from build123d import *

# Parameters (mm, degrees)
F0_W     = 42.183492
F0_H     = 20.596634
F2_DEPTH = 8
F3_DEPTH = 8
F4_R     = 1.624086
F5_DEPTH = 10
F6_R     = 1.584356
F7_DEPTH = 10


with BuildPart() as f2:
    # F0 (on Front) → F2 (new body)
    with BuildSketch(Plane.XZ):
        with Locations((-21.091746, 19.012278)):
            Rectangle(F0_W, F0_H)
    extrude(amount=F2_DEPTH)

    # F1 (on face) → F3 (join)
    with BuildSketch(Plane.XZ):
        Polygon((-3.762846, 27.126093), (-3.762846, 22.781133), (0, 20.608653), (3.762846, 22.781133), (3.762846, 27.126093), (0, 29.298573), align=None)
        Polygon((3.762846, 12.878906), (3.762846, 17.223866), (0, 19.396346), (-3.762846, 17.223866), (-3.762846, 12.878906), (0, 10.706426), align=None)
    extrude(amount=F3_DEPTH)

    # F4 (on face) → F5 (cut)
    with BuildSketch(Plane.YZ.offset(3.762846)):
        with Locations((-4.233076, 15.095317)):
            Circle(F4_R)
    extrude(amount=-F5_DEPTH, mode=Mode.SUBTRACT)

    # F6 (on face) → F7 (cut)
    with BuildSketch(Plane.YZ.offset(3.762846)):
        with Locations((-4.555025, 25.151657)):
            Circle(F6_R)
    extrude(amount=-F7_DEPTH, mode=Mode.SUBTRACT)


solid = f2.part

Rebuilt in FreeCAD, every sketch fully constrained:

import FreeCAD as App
import Part
import Sketcher

V = App.Vector
Q = App.Units.Quantity


def add_polygon(sketch, points):
    """Adds a closed chain of lines whose ends are joined by coincident constraints."""
    first, n = sketch.GeometryCount, len(points)
    for a, b in zip(points, points[1:] + points[:1]):
        sketch.addGeometry(Part.LineSegment(App.Vector(*a, 0), App.Vector(*b, 0)), False)
    for i in range(n):
        sketch.addConstraint(Sketcher.Constraint("Coincident", first + i, 2, first + (i + 1) % n, 1))

doc = App.newDocument("Part")
body = doc.addObject("PartDesign::Body", "Body")

sketch1 = body.newObject("Sketcher::SketchObject", "Sketch")
sketch1.AttachmentSupport = (doc.getObject("XZ_Plane"), [""])
sketch1.MapMode = "FlatFace"
add_polygon(sketch1, [(-42, 29), (-42, 9), (0, 9), (0, 29)])
sketch1.addConstraint([
    Sketcher.Constraint("Vertical", 0),
    Sketcher.Constraint("Horizontal", 1),
    Sketcher.Constraint("Vertical", 2),
    Sketcher.Constraint("Horizontal", 3),
    Sketcher.Constraint("PointOnObject", 1, 2, -2),
    Sketcher.Constraint("DistanceX", 1, 1, 1, 2, 42.183492),
    Sketcher.Constraint("DistanceY", 0, 2, 0, 1, 20.596634),
    Sketcher.Constraint("DistanceY", -1, 1, 0, 2, 8.713961),
])
pad1 = body.newObject("PartDesign::Pad", "Pad")
pad1.Profile = sketch1
pad1.Length = 8

sketch2 = body.newObject("Sketcher::SketchObject", "Sketch001")
sketch2.AttachmentSupport = (doc.getObject("XZ_Plane"), [""])
sketch2.MapMode = "FlatFace"
add_polygon(sketch2, [(-3.8, 27.1), (-3.8, 22.8), (0, 20.6), (3.8, 22.8), (3.8, 27.1), (0, 29.3)])
add_polygon(sketch2, [(3.8, 12.9), (3.8, 17.2), (0, 19.4), (-3.8, 17.2), (-3.8, 12.9), (0, 10.7)])
sketch2.addConstraint([
    Sketcher.Constraint("Vertical", 0),
    Sketcher.Constraint("Vertical", 3),
    Sketcher.Constraint("Vertical", 6),
    Sketcher.Constraint("Vertical", 9),
    Sketcher.Constraint("Symmetric", 0, 2, 2, 2, -2),
    Sketcher.Constraint("Symmetric", 6, 2, 8, 2, -2),
    Sketcher.Constraint("PointOnObject", 1, 2, -2),
    Sketcher.Constraint("PointOnObject", 4, 2, -2),
    Sketcher.Constraint("PointOnObject", 7, 2, -2),
    Sketcher.Constraint("PointOnObject", 10, 2, -2),
    Sketcher.Constraint("Parallel", 1, 4),
    Sketcher.Constraint("Parallel", 2, 5),
    Sketcher.Constraint("Parallel", 4, 7),
    Sketcher.Constraint("Parallel", 7, 10),
    Sketcher.Constraint("Parallel", 8, 11),
    Sketcher.Constraint("Vertical", 3, 2, 6, 2),
    Sketcher.Constraint("Equal", 3, 6),
    Sketcher.Constraint("Angle", 1, Q("-29.999998 deg")),
    Sketcher.Constraint("DistanceY", 0, 2, 0, 1, 4.34496),
    Sketcher.Constraint("Distance", 1, 4.34496),
    Sketcher.Constraint("DistanceY", -1, 1, 0, 2, 22.781133),
    Sketcher.Constraint("DistanceY", -1, 1, 6, 2, 17.223866),
])
pad2 = body.newObject("PartDesign::Pad", "Pad001")
pad2.Profile = sketch2
pad2.Length = 8

sketch3 = body.newObject("Sketcher::SketchObject", "Sketch002")
sketch3.AttachmentSupport = (doc.getObject("YZ_Plane"), [""])
sketch3.MapMode = "FlatFace"
sketch3.AttachmentOffset = App.Placement(V(0, 0, 3.762846), App.Rotation())
sketch3.addGeometry(Part.Circle(V(-4.2, 15.1, 0), V(0, 0, 1), 1.6), False)
sketch3.addConstraint([
    Sketcher.Constraint("Diameter", 0, 3.248172),
    Sketcher.Constraint("DistanceX", 0, 3, -1, 1, 4.233076),
    Sketcher.Constraint("DistanceY", -1, 1, 0, 3, 15.095317),
])
pocket1 = body.newObject("PartDesign::Pocket", "Pocket")
pocket1.Profile = sketch3
pocket1.Length = 10

sketch4 = body.newObject("Sketcher::SketchObject", "Sketch003")
sketch4.AttachmentSupport = (doc.getObject("YZ_Plane"), [""])
sketch4.MapMode = "FlatFace"
sketch4.AttachmentOffset = App.Placement(V(0, 0, 3.762846), App.Rotation())
sketch4.addGeometry(Part.Circle(V(-4.6, 25.2, 0), V(0, 0, 1), 1.6), False)
sketch4.addConstraint([
    Sketcher.Constraint("Diameter", 0, 3.168712),
    Sketcher.Constraint("DistanceX", 0, 3, -1, 1, 4.555025),
    Sketcher.Constraint("DistanceY", -1, 1, 0, 3, 25.151657),
])
pocket2 = body.newObject("PartDesign::Pocket", "Pocket001")
pocket2.Profile = sketch4
pocket2.Length = 10

doc.recompute()
